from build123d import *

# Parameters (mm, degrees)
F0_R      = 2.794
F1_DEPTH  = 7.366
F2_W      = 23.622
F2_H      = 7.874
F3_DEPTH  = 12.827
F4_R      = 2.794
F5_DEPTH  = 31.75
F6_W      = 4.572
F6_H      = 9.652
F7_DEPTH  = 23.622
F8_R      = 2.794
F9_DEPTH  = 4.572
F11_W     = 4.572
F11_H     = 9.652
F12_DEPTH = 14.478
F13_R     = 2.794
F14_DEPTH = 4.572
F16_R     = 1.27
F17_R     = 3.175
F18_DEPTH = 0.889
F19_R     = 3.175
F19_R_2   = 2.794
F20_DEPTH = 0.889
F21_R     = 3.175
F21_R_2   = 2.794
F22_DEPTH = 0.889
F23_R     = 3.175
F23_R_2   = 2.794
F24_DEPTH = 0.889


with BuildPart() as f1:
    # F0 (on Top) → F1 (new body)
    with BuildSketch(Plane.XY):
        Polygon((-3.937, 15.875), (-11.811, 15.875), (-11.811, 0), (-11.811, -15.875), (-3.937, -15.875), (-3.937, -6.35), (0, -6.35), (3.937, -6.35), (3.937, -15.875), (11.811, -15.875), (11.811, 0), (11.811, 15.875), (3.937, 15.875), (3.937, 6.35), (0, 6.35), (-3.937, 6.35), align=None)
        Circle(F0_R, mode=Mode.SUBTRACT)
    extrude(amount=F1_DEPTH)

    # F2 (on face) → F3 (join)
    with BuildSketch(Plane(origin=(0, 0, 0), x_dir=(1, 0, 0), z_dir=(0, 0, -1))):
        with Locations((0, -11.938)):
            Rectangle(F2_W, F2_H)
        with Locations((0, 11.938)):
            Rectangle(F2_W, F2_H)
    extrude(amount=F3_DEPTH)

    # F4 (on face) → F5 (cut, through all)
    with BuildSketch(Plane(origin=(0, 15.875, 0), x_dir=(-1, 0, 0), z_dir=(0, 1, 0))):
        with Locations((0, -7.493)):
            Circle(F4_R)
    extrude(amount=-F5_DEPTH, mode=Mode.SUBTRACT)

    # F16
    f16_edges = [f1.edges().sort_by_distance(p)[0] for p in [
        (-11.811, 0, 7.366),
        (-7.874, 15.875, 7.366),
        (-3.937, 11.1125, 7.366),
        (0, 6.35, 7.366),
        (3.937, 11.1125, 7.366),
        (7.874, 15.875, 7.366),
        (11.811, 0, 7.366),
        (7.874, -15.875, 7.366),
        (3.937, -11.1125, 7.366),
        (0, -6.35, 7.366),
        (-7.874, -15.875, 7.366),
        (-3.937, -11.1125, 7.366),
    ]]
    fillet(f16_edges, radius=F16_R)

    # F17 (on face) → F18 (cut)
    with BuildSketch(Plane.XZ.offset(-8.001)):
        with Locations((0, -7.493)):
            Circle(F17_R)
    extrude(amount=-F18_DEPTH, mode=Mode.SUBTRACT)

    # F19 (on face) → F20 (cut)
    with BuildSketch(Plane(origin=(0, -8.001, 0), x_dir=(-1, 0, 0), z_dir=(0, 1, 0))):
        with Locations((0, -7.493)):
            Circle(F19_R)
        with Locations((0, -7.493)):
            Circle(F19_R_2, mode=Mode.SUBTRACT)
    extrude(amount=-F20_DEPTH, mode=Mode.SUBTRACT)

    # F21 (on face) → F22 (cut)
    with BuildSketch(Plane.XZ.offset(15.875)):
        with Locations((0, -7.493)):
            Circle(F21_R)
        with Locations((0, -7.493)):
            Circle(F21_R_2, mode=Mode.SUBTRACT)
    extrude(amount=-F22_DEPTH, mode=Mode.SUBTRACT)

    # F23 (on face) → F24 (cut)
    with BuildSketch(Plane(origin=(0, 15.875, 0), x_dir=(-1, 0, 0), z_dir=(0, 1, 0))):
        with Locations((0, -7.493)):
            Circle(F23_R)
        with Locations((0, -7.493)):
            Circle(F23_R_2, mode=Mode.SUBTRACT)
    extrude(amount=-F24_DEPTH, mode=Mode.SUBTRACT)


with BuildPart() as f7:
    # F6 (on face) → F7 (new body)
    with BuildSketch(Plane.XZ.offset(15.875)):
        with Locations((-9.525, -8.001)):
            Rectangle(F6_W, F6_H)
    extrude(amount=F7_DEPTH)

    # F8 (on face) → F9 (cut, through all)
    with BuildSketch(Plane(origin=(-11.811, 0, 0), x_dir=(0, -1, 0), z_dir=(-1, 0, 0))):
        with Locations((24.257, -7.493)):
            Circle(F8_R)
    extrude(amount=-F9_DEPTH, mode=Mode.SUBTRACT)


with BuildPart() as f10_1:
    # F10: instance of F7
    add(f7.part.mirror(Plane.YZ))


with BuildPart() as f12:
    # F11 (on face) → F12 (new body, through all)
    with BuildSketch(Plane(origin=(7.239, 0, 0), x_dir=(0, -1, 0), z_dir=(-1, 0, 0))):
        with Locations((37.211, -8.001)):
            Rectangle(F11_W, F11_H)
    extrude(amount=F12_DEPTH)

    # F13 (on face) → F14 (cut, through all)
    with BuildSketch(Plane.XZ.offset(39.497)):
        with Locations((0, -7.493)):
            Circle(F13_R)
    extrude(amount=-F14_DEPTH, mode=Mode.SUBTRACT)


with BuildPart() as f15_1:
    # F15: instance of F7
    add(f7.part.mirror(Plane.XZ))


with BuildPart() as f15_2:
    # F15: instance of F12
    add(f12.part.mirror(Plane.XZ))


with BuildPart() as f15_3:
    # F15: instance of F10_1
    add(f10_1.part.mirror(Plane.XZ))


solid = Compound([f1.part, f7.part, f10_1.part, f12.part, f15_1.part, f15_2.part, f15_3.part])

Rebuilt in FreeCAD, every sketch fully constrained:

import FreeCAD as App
import Part
import Sketcher

V = App.Vector
Q = App.Units.Quantity


def edges_at(feature, points):
    """Names of the edges that pass closest to the given points."""
    edges = feature.Shape.Edges
    near = lambda p: min(range(len(edges)), key=lambda i: edges[i].distToShape(Part.Vertex(*p))[0])
    return sorted({f"Edge{near(p) + 1}" for p in points})


def add_polygon(sketch, points):
    """Adds a closed chain of lines whose ends are joined by coincident constraints."""
    first, n = sketch.GeometryCount, len(points)
    for a, b in zip(points, points[1:] + points[:1]):
        sketch.addGeometry(Part.LineSegment(App.Vector(*a, 0), App.Vector(*b, 0)), False)
    for i in range(n):
        sketch.addConstraint(Sketcher.Constraint("Coincident", first + i, 2, first + (i + 1) % n, 1))

doc = App.newDocument("Part")
body = doc.addObject("PartDesign::Body", "Body")

# Sketch on XY plane
sketch1 = body.newObject("Sketcher::SketchObject", "Sketch")
sketch1.AttachmentSupport = (doc.getObject("XY_Plane"), [""])
sketch1.MapMode = "FlatFace"
add_polygon(sketch1, [(-3.937, 15.875), (-11.811, 15.875), (-11.811, -15.875), (-3.937, -15.875), (-3.937, -6.35), (3.937, -6.35), (3.937, -15.875), (11.811, -15.875), (11.811, 15.875), (3.937, 15.875), (3.937, 6.35), (-3.937, 6.35)])  # lines 0-11
sketch1.addGeometry(Part.Circle(V(0, 0, 0), V(0, 0, 1), 2.794), False)  # 12
sketch1.addConstraint([
    Sketcher.Constraint("Horizontal", 0),
    Sketcher.Constraint("Vertical", 1),
    Sketcher.Constraint("Horizontal", 2),
    Sketcher.Constraint("Vertical", 3),
    Sketcher.Constraint("Horizontal", 4),
    Sketcher.Constraint("Vertical", 5),
    Sketcher.Constraint("Horizontal", 6),
    Sketcher.Constraint("Vertical", 7),
    Sketcher.Constraint("Horizontal", 8),
    Sketcher.Constraint("Vertical", 9),
    Sketcher.Constraint("Horizontal", 10),
    Sketcher.Constraint("Vertical", 11),
    Sketcher.Constraint("Coincident", 12, 3, -1, 1),
    Sketcher.Constraint("Symmetric", 0, 2, 6, 2, -1, 1),
    Sketcher.Constraint("Symmetric", 2, 2, 8, 2, -1, 1),
    Sketcher.Constraint("Symmetric", 4, 2, 10, 2, -1, 1),
    Sketcher.Constraint("Symmetric", 2, 2, 5, 2, -2),
    Sketcher.Constraint("Equal", 2, 4),
    Sketcher.Constraint("Diameter", 12, Q("0.22 in")),
    Sketcher.Constraint("DistanceX", 0, 2, 0, 1, Q("0.31 in")),
    Sketcher.Constraint("DistanceY", 1, 2, 1, 1, Q("1.25 in")),
    Sketcher.Constraint("DistanceY", 4, 2, 9, 2, Q("0.5 in")),
])
pad1 = body.newObject("PartDesign::Pad", "Pad")
pad1.Profile = sketch1
pad1.Length = Q("0.29 in")

# Sketch on XY plane
sketch2 = body.newObject("Sketcher::SketchObject", "Sketch001")
sketch2.AttachmentSupport = (doc.getObject("XY_Plane"), [""])
sketch2.MapMode = "FlatFace"
add_polygon(sketch2, [(-11.811, 8.001), (-11.811, 15.875), (11.811, 15.875), (11.811, 8.001)])  # lines 0-3
add_polygon(sketch2, [(-11.811, -15.875), (-11.811, -8.001), (11.811, -8.001), (11.811, -15.875)])  # lines 4-7
sketch2.addConstraint([
    Sketcher.Constraint("Vertical", 0),
    Sketcher.Constraint("Horizontal", 1),
    Sketcher.Constraint("Vertical", 2),
    Sketcher.Constraint("Horizontal", 3),
    Sketcher.Constraint("Vertical", 4),
    Sketcher.Constraint("Horizontal", 5),
    Sketcher.Constraint("Vertical", 6),
    Sketcher.Constraint("Horizontal", 7),
    Sketcher.Constraint("Symmetric", 2, 2, 4, 2, -1, 1),
    Sketcher.Constraint("Symmetric", 0, 2, 6, 2, -1, 1),
    Sketcher.Constraint("Vertical", 3, 2, 4, 2),
    Sketcher.Constraint("DistanceX", 1, 1, 1, 2, Q("0.93 in")),
    Sketcher.Constraint("DistanceY", 0, 1, 0, 2, Q("0.31 in")),
    Sketcher.Constraint("DistanceY", 4, 2, 3, 2, Q("0.63 in")),
])
pad2 = body.newObject("PartDesign::Pad", "Pad001")
pad2.Profile = sketch2
pad2.Length = Q("0.505 in")
pad2.Reversed = True

# Sketch on XZ plane
sketch3 = body.newObject("Sketcher::SketchObject", "Sketch002")
sketch3.AttachmentSupport = (doc.getObject("XZ_Plane"), [""])
sketch3.MapMode = "FlatFace"
sketch3.AttachmentOffset = App.Placement(V(0, 0, -0.625 * 25.4), App.Rotation())
sketch3.addGeometry(Part.Circle(V(0, -7.493, 0), V(0, 0, 1), 2.794), False)
sketch3.addConstraint([
    Sketcher.Constraint("PointOnObject", 0, 3, -2),
    Sketcher.Constraint("Diameter", 0, Q("0.22 in")),
    Sketcher.Constraint("DistanceY", 0, 3, -1, 1, Q("0.295 in")),
])
pocket1 = body.newObject("PartDesign::Pocket", "Pocket")
pocket1.Profile = sketch3
pocket1.Type = "ThroughAll"
pocket1.Reversed = True
doc.recompute()

fillet = body.newObject("PartDesign::Fillet", "Fillet")
fillet.Base = (pocket1, edges_at(pocket1, [
    (-11.811, 0, 7.366),
    (-7.874, 15.875, 7.366),
    (-3.937, 11.113, 7.366),
    (0, 6.35, 7.366),
    (3.937, 11.113, 7.366),
    (7.874, 15.875, 7.366),
    (11.811, 0, 7.366),
    (7.874, -15.875, 7.366),
    (3.937, -11.113, 7.366),
    (0, -6.35, 7.366),
    (-7.874, -15.875, 7.366),
    (-3.937, -11.113, 7.366),
]))
fillet.Radius = Q("0.05 in")

# Sketch on XZ plane
sketch4 = body.newObject("Sketcher::SketchObject", "Sketch003")
sketch4.AttachmentSupport = (doc.getObject("XZ_Plane"), [""])
sketch4.MapMode = "FlatFace"
sketch4.AttachmentOffset = App.Placement(V(0, 0, -0.315 * 25.4), App.Rotation())
sketch4.addGeometry(Part.Circle(V(0, -7.493, 0), V(0, 0, 1), 3.175), False)
sketch4.addConstraint([
    Sketcher.Constraint("PointOnObject", 0, 3, -2),
    Sketcher.Constraint("Diameter", 0, Q("0.25 in")),
    Sketcher.Constraint("DistanceY", 0, 3, -1, 1, Q("0.295 in")),
])
pocket2 = body.newObject("PartDesign::Pocket", "Pocket001")
pocket2.Profile = sketch4
pocket2.Length = Q("0.035 in")

# Sketch on XZ plane
sketch5 = body.newObject("Sketcher::SketchObject", "Sketch004")
sketch5.AttachmentSupport = (doc.getObject("XZ_Plane"), [""])
sketch5.MapMode = "FlatFace"
sketch5.AttachmentOffset = App.Placement(V(0, 0, 0.315 * 25.4), App.Rotation())
sketch5.addGeometry([
    Part.Circle(V(0, -7.493, 0), V(0, 0, 1), 3.175),
    Part.Circle(V(0, -7.493, 0), V(0, 0, 1), 2.794),
], False)
sketch5.addConstraint([
    Sketcher.Constraint("Coincident", 1, 3, 0, 3),
    Sketcher.Constraint("PointOnObject", 0, 3, -2),
    Sketcher.Constraint("Diameter", 0, Q("0.25 in")),
    Sketcher.Constraint("Diameter", 1, Q("0.22 in")),
    Sketcher.Constraint("DistanceY", 0, 3, -1, 1, Q("0.295 in")),
])
pocket3 = body.newObject("PartDesign::Pocket", "Pocket002")
pocket3.Profile = sketch5
pocket3.Length = Q("0.035 in")
pocket3.Reversed = True

# Sketch on XZ plane
sketch6 = body.newObject("Sketcher::SketchObject", "Sketch005")
sketch6.AttachmentSupport = (doc.getObject("XZ_Plane"), [""])
sketch6.MapMode = "FlatFace"
sketch6.AttachmentOffset = App.Placement(V(0, 0, 0.625 * 25.4), App.Rotation())
sketch6.addGeometry([
    Part.Circle(V(0, -7.493, 0), V(0, 0, 1), 3.175),
    Part.Circle(V(0, -7.493, 0), V(0, 0, 1), 2.794),
], False)
sketch6.addConstraint([
    Sketcher.Constraint("Coincident", 1, 3, 0, 3),
    Sketcher.Constraint("PointOnObject", 0, 3, -2),
    Sketcher.Constraint("Diameter", 0, Q("0.25 in")),
    Sketcher.Constraint("Diameter", 1, Q("0.22 in")),
    Sketcher.Constraint("DistanceY", 0, 3, -1, 1, Q("0.295 in")),
])
pocket4 = body.newObject("PartDesign::Pocket", "Pocket003")
pocket4.Profile = sketch6
pocket4.Length = Q("0.035 in")

# Sketch on XZ plane
sketch7 = body.newObject("Sketcher::SketchObject", "Sketch006")
sketch7.AttachmentSupport = (doc.getObject("XZ_Plane"), [""])
sketch7.MapMode = "FlatFace"
sketch7.AttachmentOffset = App.Placement(V(0, 0, -0.625 * 25.4), App.Rotation())
sketch7.addGeometry([
    Part.Circle(V(0, -7.493, 0), V(0, 0, 1), 3.175),
    Part.Circle(V(0, -7.493, 0), V(0, 0, 1), 2.794),
], False)
sketch7.addConstraint([
    Sketcher.Constraint("Coincident", 1, 3, 0, 3),
    Sketcher.Constraint("PointOnObject", 0, 3, -2),
    Sketcher.Constraint("Diameter", 0, Q("0.25 in")),
    Sketcher.Constraint("Diameter", 1, Q("0.22 in")),
    Sketcher.Constraint("DistanceY", 0, 3, -1, 1, Q("0.295 in")),
])
pocket5 = body.newObject("PartDesign::Pocket", "Pocket004")
pocket5.Profile = sketch7
pocket5.Length = Q("0.035 in")
pocket5.Reversed = True
body2 = doc.addObject("PartDesign::Body", "Body001")

# Sketch on XZ plane
sketch8 = body2.newObject("Sketcher::SketchObject", "Sketch007")
sketch8.AttachmentSupport = (doc.getObject("XZ_Plane001"), [""])
sketch8.MapMode = "FlatFace"
sketch8.AttachmentOffset = App.Placement(V(0, 0, 0.625 * 25.4), App.Rotation())
add_polygon(sketch8, [(-11.811, -3.175), (-11.811, -12.827), (-7.239, -12.827), (-7.239, -3.175)])  # lines 0-3
sketch8.addConstraint([
    Sketcher.Constraint("Vertical", 0),
    Sketcher.Constraint("Horizontal", 1),
    Sketcher.Constraint("Vertical", 2),
    Sketcher.Constraint("Horizontal", 3),
    Sketcher.Constraint("DistanceX", 1, 1, 1, 2, Q("0.18 in")),
    Sketcher.Constraint("DistanceY", 0, 2, 0, 1, Q("0.38 in")),
    Sketcher.Constraint("DistanceX", 0, 2, -1, 1, Q("0.465 in")),
    Sketcher.Constraint("DistanceY", 0, 2, -1, 1, Q("0.505 in")),
])
pad3 = body2.newObject("PartDesign::Pad", "Pad002")
pad3.Profile = sketch8
pad3.Length = Q("0.93 in")

# Sketch on YZ plane
sketch9 = body2.newObject("Sketcher::SketchObject", "Sketch008")
sketch9.AttachmentSupport = (doc.getObject("YZ_Plane001"), [""])
sketch9.MapMode = "FlatFace"
sketch9.AttachmentOffset = App.Placement(V(0, 0, -0.465 * 25.4), App.Rotation())
sketch9.addGeometry(Part.Circle(V(-24.257, -7.493, 0), V(0, 0, 1), 2.794), False)
sketch9.addConstraint([
    Sketcher.Constraint("Diameter", 0, Q("0.22 in")),
    Sketcher.Constraint("DistanceX", 0, 3, -1, 1, Q("0.955 in")),
    Sketcher.Constraint("DistanceY", 0, 3, -1, 1, Q("0.295 in")),
])
pocket6 = body2.newObject("PartDesign::Pocket", "Pocket005")
pocket6.Profile = sketch9
pocket6.Type = "ThroughAll"
pocket6.Reversed = True
body3 = doc.addObject("PartDesign::Body", "Body002")
doc.recompute()

mirroring = doc.addObject("Part::Mirroring", "Mirroring")
mirroring.Source = body2
mirroring.Base = V(0, 0, 0)
mirroring.Normal = V(1, 0, 0)
body3.BaseFeature = mirroring
doc.recompute()
body4 = doc.addObject("PartDesign::Body", "Body003")

# Sketch on YZ plane
sketch10 = body4.newObject("Sketcher::SketchObject", "Sketch009")
sketch10.AttachmentSupport = (doc.getObject("YZ_Plane003"), [""])
sketch10.MapMode = "FlatFace"
sketch10.AttachmentOffset = App.Placement(V(0, 0, 0.285 * 25.4), App.Rotation())
add_polygon(sketch10, [(-34.925, -3.175), (-34.925, -12.827), (-39.497, -12.827), (-39.497, -3.175)])  # lines 0-3
sketch10.addConstraint([
    Sketcher.Constraint("Vertical", 0),
    Sketcher.Constraint("Horizontal", 1),
    Sketcher.Constraint("Vertical", 2),
    Sketcher.Constraint("Horizontal", 3),
    Sketcher.Constraint("DistanceX", 1, 2, 1, 1, Q("0.18 in")),
    Sketcher.Constraint("DistanceY", 0, 2, 0, 1, Q("0.38 in")),
    Sketcher.Constraint("DistanceX", 0, 2, -1, 1, Q("1.375 in")),
    Sketcher.Constraint("DistanceY", 0, 2, -1, 1, Q("0.505 in")),
])
pad4 = body4.newObject("PartDesign::Pad", "Pad003")
pad4.Profile = sketch10
pad4.Length = Q("0.57 in")
pad4.Reversed = True

# Sketch on XZ plane
sketch11 = body4.newObject("Sketcher::SketchObject", "Sketch010")
sketch11.AttachmentSupport = (doc.getObject("XZ_Plane003"), [""])
sketch11.MapMode = "FlatFace"
sketch11.AttachmentOffset = App.Placement(V(0, 0, 1.555 * 25.4), App.Rotation())
sketch11.addGeometry(Part.Circle(V(0, -7.493, 0), V(0, 0, 1), 2.794), False)
sketch11.addConstraint([
    Sketcher.Constraint("PointOnObject", 0, 3, -2),
    Sketcher.Constraint("Diameter", 0, Q("0.22 in")),
    Sketcher.Constraint("DistanceY", 0, 3, -1, 1, Q("0.295 in")),
])
pocket7 = body4.newObject("PartDesign::Pocket", "Pocket006")
pocket7.Profile = sketch11
pocket7.Type = "ThroughAll"
body5 = doc.addObject("PartDesign::Body", "Body004")
doc.recompute()

mirroring2 = doc.addObject("Part::Mirroring", "Mirroring001")
mirroring2.Source = body2
mirroring2.Base = V(0, 0, 0)
mirroring2.Normal = V(0, -1, 0)
body5.BaseFeature = mirroring2
doc.recompute()
body6 = doc.addObject("PartDesign::Body", "Body005")
doc.recompute()

mirroring3 = doc.addObject("Part::Mirroring", "Mirroring002")
mirroring3.Source = body4
mirroring3.Base = V(0, 0, 0)
mirroring3.Normal = V(0, -1, 0)
body6.BaseFeature = mirroring3
doc.recompute()
body7 = doc.addObject("PartDesign::Body", "Body006")
doc.recompute()

mirroring4 = doc.addObject("Part::Mirroring", "Mirroring003")
mirroring4.Source = body3
mirroring4.Base = V(0, 0, 0)
mirroring4.Normal = V(0, -1, 0)
body7.BaseFeature = mirroring4
doc.recompute()
mirroring.Visibility = False
mirroring2.Visibility = False
mirroring3.Visibility = False
mirroring4.Visibility = False

doc.recompute()
